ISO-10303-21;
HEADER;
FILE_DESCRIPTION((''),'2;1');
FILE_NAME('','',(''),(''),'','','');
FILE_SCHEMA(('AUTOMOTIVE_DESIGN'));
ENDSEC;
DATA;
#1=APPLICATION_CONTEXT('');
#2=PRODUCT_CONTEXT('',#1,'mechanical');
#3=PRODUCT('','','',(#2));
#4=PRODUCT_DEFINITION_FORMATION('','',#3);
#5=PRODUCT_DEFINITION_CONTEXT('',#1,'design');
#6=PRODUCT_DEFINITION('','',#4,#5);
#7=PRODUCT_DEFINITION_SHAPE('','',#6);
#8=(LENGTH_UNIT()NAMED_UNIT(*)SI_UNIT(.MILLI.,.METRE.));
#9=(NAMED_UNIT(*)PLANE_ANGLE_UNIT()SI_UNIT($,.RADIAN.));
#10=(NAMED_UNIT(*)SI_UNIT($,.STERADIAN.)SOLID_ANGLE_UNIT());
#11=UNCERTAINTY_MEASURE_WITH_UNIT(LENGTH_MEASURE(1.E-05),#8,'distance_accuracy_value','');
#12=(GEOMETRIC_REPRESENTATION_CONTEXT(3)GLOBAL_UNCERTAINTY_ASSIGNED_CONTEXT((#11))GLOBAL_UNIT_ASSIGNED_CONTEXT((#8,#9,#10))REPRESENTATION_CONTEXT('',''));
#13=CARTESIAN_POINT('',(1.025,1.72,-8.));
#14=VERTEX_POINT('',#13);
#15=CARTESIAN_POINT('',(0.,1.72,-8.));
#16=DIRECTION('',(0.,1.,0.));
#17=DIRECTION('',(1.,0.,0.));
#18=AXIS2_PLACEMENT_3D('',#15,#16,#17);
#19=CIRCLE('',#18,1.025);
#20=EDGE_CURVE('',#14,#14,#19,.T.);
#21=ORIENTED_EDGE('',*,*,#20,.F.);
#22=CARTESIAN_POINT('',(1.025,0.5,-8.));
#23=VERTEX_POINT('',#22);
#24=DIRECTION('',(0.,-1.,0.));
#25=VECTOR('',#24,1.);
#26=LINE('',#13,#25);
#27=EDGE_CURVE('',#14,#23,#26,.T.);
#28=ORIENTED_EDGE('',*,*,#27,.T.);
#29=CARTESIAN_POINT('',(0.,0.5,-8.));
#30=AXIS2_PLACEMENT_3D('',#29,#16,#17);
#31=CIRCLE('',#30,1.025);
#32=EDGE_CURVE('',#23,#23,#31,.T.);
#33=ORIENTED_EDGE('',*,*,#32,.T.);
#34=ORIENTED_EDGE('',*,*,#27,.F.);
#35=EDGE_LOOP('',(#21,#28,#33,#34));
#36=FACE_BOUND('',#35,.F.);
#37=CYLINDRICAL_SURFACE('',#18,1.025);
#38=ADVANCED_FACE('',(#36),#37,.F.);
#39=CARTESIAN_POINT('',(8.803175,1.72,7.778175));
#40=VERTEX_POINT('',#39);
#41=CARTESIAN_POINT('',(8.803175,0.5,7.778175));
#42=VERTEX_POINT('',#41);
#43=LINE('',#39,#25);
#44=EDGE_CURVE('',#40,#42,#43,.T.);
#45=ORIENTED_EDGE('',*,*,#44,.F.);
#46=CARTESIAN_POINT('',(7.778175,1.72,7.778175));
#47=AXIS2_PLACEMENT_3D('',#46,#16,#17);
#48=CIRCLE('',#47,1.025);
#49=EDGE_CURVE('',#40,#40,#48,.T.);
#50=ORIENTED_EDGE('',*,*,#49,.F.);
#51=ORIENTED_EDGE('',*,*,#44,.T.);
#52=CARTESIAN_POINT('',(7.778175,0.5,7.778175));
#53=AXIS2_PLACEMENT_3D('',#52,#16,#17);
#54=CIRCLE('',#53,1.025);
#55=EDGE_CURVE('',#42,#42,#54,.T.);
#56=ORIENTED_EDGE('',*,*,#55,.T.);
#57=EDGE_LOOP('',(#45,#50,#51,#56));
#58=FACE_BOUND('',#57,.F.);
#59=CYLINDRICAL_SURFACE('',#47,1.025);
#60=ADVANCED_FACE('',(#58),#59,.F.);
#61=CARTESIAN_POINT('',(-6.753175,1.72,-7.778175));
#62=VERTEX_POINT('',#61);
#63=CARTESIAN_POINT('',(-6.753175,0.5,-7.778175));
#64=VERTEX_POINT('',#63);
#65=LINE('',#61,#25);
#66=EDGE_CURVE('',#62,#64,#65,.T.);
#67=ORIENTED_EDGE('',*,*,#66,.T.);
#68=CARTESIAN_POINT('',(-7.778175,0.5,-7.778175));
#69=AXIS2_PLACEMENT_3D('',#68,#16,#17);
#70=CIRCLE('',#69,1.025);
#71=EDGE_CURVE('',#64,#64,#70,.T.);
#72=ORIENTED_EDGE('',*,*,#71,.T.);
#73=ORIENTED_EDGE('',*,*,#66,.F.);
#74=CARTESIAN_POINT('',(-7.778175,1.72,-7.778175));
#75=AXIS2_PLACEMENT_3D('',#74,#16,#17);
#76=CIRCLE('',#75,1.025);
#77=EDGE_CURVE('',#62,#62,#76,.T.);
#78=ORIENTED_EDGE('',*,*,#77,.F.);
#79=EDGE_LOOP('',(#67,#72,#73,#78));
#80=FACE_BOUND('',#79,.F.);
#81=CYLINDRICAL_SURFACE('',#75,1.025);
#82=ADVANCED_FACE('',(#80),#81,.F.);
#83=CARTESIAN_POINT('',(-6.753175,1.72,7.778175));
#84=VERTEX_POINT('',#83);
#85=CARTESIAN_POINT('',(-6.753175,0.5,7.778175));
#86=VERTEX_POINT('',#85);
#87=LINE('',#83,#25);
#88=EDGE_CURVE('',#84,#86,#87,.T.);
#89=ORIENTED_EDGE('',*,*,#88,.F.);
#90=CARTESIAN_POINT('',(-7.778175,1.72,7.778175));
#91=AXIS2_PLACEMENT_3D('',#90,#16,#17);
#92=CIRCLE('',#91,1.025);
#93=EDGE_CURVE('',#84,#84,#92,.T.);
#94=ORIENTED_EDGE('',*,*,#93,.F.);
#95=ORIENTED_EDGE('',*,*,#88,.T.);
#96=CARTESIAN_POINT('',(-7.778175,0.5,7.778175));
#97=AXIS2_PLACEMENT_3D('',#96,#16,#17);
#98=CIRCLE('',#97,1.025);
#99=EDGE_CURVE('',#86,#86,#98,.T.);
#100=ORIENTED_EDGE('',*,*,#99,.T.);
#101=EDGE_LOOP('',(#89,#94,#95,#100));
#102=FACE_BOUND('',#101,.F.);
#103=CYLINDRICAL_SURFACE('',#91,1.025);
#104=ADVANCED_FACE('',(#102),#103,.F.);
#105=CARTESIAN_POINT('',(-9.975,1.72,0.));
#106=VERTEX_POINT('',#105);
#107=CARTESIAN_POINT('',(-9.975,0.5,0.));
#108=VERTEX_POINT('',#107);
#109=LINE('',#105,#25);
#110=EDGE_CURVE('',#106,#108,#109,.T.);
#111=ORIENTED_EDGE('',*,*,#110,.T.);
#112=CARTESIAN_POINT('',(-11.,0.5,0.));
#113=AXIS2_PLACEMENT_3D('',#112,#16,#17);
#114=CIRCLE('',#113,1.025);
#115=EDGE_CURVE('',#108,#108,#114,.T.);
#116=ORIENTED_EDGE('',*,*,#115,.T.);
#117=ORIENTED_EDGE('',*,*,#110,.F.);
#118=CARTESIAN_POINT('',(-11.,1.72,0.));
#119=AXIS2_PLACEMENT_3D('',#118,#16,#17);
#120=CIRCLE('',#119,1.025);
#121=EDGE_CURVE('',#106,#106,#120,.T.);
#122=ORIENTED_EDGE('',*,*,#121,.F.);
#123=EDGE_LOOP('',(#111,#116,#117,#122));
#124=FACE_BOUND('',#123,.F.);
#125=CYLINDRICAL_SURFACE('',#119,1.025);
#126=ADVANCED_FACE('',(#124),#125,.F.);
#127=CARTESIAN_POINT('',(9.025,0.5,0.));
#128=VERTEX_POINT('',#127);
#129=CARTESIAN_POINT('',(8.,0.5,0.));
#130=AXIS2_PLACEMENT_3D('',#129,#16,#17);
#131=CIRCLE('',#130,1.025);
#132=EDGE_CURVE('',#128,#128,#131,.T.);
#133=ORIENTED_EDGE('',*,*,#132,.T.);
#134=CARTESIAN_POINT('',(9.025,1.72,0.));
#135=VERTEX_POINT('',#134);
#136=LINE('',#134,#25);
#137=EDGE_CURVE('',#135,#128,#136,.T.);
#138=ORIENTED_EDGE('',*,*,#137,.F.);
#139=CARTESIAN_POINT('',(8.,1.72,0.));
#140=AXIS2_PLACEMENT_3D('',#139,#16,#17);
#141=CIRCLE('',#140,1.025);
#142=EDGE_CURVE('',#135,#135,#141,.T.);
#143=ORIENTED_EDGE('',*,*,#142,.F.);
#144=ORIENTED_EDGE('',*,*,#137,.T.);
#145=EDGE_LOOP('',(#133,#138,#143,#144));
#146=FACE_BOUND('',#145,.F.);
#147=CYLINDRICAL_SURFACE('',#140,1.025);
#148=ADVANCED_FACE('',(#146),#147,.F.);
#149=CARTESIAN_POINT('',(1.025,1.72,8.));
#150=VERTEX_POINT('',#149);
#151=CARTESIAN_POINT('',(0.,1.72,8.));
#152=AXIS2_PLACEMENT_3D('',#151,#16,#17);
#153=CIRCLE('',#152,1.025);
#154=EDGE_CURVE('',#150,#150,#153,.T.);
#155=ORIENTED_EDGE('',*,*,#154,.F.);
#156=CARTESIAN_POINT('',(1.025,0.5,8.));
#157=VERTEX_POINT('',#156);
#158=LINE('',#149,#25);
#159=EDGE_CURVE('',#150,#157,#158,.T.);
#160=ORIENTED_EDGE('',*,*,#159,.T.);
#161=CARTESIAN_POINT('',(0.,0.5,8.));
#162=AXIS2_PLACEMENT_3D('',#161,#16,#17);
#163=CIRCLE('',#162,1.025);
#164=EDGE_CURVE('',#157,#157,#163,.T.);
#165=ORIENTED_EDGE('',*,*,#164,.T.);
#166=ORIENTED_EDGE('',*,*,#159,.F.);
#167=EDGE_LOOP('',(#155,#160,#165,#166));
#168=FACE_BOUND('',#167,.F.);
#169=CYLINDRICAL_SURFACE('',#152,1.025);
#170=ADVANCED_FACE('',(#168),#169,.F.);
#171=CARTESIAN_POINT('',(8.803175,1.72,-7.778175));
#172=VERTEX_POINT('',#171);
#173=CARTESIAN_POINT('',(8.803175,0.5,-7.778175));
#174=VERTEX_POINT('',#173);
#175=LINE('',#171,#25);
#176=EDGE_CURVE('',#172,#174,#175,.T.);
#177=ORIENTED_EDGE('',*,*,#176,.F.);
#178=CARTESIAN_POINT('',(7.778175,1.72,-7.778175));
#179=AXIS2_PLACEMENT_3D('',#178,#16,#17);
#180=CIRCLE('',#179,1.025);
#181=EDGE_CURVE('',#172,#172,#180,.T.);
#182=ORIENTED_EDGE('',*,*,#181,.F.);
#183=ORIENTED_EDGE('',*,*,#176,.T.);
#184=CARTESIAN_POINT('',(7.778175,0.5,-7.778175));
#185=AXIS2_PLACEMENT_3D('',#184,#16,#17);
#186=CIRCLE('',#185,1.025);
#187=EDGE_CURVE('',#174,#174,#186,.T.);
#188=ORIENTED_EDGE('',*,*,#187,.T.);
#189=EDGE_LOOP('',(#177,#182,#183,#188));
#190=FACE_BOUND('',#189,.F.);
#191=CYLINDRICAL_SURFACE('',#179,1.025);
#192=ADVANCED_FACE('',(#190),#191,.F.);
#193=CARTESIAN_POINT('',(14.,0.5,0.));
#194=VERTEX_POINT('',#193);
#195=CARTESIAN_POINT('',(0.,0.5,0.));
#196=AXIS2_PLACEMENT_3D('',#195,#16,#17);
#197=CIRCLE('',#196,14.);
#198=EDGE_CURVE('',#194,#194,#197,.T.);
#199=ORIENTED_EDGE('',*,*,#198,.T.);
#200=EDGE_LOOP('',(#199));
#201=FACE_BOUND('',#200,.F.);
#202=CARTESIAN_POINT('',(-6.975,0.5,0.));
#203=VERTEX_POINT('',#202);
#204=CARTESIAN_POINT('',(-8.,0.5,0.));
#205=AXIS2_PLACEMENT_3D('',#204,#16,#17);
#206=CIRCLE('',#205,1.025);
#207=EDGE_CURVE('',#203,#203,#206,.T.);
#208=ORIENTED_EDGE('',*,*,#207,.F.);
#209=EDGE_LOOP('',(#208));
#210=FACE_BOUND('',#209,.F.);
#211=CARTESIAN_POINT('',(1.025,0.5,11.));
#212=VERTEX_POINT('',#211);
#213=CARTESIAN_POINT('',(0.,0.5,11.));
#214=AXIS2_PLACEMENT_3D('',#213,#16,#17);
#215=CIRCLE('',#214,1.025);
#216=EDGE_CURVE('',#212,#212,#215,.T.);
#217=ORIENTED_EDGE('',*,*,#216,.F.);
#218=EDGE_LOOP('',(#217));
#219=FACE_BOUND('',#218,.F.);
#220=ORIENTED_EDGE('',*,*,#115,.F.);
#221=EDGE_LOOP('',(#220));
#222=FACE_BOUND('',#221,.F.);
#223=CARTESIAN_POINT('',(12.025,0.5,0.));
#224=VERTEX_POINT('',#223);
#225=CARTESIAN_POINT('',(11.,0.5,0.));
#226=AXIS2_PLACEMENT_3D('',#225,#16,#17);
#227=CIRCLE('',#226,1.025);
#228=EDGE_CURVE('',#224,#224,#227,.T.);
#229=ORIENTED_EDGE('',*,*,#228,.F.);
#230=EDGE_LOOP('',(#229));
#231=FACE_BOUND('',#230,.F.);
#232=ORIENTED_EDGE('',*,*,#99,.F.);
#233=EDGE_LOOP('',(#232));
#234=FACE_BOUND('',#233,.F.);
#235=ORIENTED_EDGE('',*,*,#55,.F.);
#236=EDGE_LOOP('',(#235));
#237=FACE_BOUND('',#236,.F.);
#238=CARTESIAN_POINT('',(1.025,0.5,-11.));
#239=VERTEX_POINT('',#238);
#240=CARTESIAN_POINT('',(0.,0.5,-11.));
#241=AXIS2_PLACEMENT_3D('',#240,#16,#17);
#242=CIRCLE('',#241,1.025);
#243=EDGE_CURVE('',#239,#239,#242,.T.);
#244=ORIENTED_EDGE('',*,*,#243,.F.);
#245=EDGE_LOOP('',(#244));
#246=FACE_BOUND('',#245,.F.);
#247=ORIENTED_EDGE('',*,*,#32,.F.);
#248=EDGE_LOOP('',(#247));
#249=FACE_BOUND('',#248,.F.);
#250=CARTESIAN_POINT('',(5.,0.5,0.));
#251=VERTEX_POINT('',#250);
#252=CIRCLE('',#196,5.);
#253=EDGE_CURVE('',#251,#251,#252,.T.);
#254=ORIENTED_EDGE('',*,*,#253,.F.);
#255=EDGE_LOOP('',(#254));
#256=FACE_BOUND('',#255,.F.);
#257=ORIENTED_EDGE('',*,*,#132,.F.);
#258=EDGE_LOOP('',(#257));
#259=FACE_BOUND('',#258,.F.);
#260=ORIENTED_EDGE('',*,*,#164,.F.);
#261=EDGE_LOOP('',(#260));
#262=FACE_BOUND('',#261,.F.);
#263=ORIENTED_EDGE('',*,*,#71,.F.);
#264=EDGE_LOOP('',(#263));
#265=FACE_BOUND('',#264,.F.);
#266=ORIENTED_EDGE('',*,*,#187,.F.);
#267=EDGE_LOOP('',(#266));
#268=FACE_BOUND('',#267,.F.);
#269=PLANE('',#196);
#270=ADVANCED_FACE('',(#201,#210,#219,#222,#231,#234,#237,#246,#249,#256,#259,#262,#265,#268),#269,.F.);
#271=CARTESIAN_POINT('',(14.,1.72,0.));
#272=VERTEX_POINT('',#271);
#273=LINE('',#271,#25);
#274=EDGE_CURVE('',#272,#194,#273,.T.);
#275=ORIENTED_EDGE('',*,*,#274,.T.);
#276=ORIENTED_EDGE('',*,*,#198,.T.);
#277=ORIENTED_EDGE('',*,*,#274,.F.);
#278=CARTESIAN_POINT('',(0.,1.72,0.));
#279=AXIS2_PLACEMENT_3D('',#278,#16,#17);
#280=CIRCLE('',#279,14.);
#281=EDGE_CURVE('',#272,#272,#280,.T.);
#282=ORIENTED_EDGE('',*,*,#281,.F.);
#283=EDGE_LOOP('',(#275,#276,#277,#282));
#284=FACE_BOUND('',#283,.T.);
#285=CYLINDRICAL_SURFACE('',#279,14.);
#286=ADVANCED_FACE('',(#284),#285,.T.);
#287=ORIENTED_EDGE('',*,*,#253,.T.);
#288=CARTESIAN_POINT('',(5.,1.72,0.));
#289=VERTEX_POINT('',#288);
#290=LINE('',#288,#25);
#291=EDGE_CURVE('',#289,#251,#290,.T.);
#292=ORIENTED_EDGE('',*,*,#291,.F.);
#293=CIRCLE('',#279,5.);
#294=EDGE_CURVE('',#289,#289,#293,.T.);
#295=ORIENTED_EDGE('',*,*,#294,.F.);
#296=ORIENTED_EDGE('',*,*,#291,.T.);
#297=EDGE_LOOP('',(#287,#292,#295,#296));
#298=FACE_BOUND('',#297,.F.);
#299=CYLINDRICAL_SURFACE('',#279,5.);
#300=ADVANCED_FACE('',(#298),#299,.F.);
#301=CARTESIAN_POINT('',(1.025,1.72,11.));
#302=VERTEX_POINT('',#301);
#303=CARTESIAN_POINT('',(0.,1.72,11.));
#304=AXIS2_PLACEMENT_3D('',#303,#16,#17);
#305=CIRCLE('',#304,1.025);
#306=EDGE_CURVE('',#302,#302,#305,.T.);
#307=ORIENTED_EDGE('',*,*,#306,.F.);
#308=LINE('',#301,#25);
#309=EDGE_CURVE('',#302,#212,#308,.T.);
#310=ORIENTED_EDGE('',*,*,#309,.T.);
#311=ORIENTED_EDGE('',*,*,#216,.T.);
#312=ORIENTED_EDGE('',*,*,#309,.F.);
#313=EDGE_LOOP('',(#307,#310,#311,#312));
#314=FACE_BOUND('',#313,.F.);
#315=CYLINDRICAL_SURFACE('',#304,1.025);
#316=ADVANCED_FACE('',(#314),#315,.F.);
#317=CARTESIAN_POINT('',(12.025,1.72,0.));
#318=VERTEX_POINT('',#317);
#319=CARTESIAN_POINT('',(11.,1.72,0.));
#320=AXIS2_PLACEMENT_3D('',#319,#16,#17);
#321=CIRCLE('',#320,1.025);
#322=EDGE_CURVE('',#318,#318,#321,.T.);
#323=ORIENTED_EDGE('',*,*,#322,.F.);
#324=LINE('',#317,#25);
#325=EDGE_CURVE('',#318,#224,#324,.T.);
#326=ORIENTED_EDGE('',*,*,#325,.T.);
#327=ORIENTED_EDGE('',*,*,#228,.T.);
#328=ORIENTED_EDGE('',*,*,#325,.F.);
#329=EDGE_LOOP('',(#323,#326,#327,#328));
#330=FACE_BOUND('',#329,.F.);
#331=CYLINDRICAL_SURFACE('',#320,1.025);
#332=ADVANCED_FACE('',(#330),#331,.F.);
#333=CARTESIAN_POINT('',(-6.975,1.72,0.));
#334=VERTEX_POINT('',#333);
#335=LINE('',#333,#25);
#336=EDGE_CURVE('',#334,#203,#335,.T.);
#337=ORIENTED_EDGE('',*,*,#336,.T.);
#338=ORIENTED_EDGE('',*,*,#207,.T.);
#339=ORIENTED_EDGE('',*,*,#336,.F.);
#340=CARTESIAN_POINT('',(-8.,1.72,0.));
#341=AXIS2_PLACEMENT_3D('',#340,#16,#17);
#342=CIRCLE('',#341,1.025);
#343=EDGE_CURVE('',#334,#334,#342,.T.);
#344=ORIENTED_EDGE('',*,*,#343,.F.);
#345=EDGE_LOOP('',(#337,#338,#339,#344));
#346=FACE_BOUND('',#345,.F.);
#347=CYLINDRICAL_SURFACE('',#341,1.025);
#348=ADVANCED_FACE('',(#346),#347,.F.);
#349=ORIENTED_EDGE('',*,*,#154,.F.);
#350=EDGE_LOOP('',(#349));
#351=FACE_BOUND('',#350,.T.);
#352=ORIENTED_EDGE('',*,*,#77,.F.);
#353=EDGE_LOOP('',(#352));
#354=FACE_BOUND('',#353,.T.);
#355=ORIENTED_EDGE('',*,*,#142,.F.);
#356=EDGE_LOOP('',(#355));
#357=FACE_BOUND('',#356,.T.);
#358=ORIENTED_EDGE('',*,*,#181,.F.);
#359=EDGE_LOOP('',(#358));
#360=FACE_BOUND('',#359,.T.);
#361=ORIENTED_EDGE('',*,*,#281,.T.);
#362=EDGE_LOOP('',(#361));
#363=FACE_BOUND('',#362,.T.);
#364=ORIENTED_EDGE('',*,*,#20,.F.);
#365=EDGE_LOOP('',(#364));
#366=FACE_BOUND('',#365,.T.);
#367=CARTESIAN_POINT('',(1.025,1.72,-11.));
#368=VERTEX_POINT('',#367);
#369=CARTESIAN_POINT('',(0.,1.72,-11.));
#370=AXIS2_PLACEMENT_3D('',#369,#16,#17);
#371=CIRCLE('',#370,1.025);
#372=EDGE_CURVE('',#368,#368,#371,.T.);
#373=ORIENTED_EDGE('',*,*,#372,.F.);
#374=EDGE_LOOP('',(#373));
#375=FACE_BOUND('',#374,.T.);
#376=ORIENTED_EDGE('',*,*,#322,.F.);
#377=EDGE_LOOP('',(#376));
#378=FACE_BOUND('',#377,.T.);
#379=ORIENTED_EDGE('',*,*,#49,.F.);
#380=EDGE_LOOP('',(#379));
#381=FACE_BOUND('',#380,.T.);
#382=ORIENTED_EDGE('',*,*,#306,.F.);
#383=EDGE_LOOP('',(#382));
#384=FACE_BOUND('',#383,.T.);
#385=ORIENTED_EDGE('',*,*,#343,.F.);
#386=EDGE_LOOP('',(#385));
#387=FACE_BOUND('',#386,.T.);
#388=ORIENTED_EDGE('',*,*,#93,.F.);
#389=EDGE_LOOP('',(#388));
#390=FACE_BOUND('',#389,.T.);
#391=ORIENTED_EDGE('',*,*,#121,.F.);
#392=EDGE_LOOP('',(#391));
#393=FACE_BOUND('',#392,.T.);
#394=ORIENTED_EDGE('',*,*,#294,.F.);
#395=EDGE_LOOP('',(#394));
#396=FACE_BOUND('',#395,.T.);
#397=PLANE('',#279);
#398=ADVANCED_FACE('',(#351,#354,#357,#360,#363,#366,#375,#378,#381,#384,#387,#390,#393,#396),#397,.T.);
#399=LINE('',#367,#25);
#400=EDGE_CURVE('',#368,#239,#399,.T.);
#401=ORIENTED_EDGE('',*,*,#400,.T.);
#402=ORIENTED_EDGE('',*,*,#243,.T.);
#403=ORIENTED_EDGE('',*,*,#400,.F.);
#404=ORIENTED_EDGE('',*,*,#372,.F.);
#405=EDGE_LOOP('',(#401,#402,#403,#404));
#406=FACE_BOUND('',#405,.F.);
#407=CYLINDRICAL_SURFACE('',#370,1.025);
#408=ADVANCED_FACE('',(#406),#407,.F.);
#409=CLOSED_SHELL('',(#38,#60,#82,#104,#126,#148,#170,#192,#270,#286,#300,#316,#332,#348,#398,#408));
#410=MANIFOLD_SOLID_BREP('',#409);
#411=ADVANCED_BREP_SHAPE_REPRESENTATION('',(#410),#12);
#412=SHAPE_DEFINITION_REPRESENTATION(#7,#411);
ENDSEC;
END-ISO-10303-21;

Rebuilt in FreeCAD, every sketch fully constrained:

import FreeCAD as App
import Part
import Sketcher

V = App.Vector

doc = App.newDocument("Part")
body = doc.addObject("PartDesign::Body", "Body")

# Sketch on XZ plane
sketch1 = body.newObject("Sketcher::SketchObject", "Sketch")
sketch1.AttachmentSupport = (doc.getObject("XZ_Plane"), [""])
sketch1.MapMode = "FlatFace"
sketch1.AttachmentOffset = App.Placement(V(0, 0, -1.72), App.Rotation())
sketch1.addGeometry([
    Part.Circle(V(0, 0, 0), V(0, 0, 1), 14),  # 0
    Part.Circle(V(-7.8, 7.8, 0), V(0, 0, 1), 1),  # 1
    Part.Circle(V(0, 11, 0), V(0, 0, 1), 1),  # 2
    Part.Circle(V(0, 8, 0), V(0, 0, 1), 1),  # 3
    Part.Circle(V(7.8, 7.8, 0), V(0, 0, 1), 1),  # 4
    Part.Circle(V(-11, 0, 0), V(0, 0, 1), 1),  # 5
    Part.Circle(V(-8, 0, 0), V(0, 0, 1), 1),  # 6
    Part.Circle(V(0, 0, 0), V(0, 0, 1), 5),  # 7
    Part.Circle(V(-7.8, -7.8, 0), V(0, 0, 1), 1),  # 8
    Part.Circle(V(0, -8, 0), V(0, 0, 1), 1),  # 9
    Part.Circle(V(0, -11, 0), V(0, 0, 1), 1),  # 10
    Part.Circle(V(8, 0, 0), V(0, 0, 1), 1),  # 11
    Part.Circle(V(11, 0, 0), V(0, 0, 1), 1),  # 12
    Part.Circle(V(7.8, -7.8, 0), V(0, 0, 1), 1),  # 13
], False)
sketch1.addConstraint([
    Sketcher.Constraint("Coincident", 0, 3, -1, 1),
    Sketcher.Constraint("Coincident", 7, 3, -1, 1),
    Sketcher.Constraint("Equal", 1, 2),
    Sketcher.Constraint("Equal", 2, 3),
    Sketcher.Constraint("Equal", 3, 4),
    Sketcher.Constraint("Equal", 4, 5),
    Sketcher.Constraint("Equal", 5, 6),
    Sketcher.Constraint("Equal", 6, 8),
    Sketcher.Constraint("Equal", 8, 9),
    Sketcher.Constraint("Equal", 9, 10),
    Sketcher.Constraint("Equal", 10, 11),
    Sketcher.Constraint("Equal", 11, 12),
    Sketcher.Constraint("Equal", 12, 13),
    Sketcher.Constraint("Symmetric", 4, 3, 8, 3, -1, 1),
    Sketcher.Constraint("Symmetric", 3, 3, 9, 3, -1, 1),
    Sketcher.Constraint("Symmetric", 2, 3, 10, 3, -1, 1),
    Sketcher.Constraint("Symmetric", 6, 3, 11, 3, -1, 1),
    Sketcher.Constraint("Symmetric", 5, 3, 12, 3, -1, 1),
    Sketcher.Constraint("Symmetric", 1, 3, 13, 3, -1, 1),
    Sketcher.Constraint("Symmetric", 1, 3, 4, 3, -2),
    Sketcher.Constraint("PointOnObject", 2, 3, -2),
    Sketcher.Constraint("PointOnObject", 3, 3, -2),
    Sketcher.Constraint("PointOnObject", 5, 3, -1),
    Sketcher.Constraint("PointOnObject", 6, 3, -1),
    Sketcher.Constraint("Diameter", 0, 28.0),
    Sketcher.Constraint("Diameter", 7, 10.0),
    Sketcher.Constraint("Diameter", 1, 2.05),
    Sketcher.Constraint("DistanceY", -1, 1, 2, 3, 11.0),
    Sketcher.Constraint("DistanceY", -1, 1, 3, 3, 8.0),
    Sketcher.Constraint("DistanceX", 5, 3, -1, 1, 11.0),
    Sketcher.Constraint("DistanceX", 6, 3, -1, 1, 8.0),
    Sketcher.Constraint("DistanceX", 1, 3, 4, 3, 15.556349),
    Sketcher.Constraint("DistanceY", 8, 3, 1, 3, 15.556349),
])
pad1 = body.newObject("PartDesign::Pad", "Pad")
pad1.Profile = sketch1
pad1.Length = 1.22

doc.recompute()
